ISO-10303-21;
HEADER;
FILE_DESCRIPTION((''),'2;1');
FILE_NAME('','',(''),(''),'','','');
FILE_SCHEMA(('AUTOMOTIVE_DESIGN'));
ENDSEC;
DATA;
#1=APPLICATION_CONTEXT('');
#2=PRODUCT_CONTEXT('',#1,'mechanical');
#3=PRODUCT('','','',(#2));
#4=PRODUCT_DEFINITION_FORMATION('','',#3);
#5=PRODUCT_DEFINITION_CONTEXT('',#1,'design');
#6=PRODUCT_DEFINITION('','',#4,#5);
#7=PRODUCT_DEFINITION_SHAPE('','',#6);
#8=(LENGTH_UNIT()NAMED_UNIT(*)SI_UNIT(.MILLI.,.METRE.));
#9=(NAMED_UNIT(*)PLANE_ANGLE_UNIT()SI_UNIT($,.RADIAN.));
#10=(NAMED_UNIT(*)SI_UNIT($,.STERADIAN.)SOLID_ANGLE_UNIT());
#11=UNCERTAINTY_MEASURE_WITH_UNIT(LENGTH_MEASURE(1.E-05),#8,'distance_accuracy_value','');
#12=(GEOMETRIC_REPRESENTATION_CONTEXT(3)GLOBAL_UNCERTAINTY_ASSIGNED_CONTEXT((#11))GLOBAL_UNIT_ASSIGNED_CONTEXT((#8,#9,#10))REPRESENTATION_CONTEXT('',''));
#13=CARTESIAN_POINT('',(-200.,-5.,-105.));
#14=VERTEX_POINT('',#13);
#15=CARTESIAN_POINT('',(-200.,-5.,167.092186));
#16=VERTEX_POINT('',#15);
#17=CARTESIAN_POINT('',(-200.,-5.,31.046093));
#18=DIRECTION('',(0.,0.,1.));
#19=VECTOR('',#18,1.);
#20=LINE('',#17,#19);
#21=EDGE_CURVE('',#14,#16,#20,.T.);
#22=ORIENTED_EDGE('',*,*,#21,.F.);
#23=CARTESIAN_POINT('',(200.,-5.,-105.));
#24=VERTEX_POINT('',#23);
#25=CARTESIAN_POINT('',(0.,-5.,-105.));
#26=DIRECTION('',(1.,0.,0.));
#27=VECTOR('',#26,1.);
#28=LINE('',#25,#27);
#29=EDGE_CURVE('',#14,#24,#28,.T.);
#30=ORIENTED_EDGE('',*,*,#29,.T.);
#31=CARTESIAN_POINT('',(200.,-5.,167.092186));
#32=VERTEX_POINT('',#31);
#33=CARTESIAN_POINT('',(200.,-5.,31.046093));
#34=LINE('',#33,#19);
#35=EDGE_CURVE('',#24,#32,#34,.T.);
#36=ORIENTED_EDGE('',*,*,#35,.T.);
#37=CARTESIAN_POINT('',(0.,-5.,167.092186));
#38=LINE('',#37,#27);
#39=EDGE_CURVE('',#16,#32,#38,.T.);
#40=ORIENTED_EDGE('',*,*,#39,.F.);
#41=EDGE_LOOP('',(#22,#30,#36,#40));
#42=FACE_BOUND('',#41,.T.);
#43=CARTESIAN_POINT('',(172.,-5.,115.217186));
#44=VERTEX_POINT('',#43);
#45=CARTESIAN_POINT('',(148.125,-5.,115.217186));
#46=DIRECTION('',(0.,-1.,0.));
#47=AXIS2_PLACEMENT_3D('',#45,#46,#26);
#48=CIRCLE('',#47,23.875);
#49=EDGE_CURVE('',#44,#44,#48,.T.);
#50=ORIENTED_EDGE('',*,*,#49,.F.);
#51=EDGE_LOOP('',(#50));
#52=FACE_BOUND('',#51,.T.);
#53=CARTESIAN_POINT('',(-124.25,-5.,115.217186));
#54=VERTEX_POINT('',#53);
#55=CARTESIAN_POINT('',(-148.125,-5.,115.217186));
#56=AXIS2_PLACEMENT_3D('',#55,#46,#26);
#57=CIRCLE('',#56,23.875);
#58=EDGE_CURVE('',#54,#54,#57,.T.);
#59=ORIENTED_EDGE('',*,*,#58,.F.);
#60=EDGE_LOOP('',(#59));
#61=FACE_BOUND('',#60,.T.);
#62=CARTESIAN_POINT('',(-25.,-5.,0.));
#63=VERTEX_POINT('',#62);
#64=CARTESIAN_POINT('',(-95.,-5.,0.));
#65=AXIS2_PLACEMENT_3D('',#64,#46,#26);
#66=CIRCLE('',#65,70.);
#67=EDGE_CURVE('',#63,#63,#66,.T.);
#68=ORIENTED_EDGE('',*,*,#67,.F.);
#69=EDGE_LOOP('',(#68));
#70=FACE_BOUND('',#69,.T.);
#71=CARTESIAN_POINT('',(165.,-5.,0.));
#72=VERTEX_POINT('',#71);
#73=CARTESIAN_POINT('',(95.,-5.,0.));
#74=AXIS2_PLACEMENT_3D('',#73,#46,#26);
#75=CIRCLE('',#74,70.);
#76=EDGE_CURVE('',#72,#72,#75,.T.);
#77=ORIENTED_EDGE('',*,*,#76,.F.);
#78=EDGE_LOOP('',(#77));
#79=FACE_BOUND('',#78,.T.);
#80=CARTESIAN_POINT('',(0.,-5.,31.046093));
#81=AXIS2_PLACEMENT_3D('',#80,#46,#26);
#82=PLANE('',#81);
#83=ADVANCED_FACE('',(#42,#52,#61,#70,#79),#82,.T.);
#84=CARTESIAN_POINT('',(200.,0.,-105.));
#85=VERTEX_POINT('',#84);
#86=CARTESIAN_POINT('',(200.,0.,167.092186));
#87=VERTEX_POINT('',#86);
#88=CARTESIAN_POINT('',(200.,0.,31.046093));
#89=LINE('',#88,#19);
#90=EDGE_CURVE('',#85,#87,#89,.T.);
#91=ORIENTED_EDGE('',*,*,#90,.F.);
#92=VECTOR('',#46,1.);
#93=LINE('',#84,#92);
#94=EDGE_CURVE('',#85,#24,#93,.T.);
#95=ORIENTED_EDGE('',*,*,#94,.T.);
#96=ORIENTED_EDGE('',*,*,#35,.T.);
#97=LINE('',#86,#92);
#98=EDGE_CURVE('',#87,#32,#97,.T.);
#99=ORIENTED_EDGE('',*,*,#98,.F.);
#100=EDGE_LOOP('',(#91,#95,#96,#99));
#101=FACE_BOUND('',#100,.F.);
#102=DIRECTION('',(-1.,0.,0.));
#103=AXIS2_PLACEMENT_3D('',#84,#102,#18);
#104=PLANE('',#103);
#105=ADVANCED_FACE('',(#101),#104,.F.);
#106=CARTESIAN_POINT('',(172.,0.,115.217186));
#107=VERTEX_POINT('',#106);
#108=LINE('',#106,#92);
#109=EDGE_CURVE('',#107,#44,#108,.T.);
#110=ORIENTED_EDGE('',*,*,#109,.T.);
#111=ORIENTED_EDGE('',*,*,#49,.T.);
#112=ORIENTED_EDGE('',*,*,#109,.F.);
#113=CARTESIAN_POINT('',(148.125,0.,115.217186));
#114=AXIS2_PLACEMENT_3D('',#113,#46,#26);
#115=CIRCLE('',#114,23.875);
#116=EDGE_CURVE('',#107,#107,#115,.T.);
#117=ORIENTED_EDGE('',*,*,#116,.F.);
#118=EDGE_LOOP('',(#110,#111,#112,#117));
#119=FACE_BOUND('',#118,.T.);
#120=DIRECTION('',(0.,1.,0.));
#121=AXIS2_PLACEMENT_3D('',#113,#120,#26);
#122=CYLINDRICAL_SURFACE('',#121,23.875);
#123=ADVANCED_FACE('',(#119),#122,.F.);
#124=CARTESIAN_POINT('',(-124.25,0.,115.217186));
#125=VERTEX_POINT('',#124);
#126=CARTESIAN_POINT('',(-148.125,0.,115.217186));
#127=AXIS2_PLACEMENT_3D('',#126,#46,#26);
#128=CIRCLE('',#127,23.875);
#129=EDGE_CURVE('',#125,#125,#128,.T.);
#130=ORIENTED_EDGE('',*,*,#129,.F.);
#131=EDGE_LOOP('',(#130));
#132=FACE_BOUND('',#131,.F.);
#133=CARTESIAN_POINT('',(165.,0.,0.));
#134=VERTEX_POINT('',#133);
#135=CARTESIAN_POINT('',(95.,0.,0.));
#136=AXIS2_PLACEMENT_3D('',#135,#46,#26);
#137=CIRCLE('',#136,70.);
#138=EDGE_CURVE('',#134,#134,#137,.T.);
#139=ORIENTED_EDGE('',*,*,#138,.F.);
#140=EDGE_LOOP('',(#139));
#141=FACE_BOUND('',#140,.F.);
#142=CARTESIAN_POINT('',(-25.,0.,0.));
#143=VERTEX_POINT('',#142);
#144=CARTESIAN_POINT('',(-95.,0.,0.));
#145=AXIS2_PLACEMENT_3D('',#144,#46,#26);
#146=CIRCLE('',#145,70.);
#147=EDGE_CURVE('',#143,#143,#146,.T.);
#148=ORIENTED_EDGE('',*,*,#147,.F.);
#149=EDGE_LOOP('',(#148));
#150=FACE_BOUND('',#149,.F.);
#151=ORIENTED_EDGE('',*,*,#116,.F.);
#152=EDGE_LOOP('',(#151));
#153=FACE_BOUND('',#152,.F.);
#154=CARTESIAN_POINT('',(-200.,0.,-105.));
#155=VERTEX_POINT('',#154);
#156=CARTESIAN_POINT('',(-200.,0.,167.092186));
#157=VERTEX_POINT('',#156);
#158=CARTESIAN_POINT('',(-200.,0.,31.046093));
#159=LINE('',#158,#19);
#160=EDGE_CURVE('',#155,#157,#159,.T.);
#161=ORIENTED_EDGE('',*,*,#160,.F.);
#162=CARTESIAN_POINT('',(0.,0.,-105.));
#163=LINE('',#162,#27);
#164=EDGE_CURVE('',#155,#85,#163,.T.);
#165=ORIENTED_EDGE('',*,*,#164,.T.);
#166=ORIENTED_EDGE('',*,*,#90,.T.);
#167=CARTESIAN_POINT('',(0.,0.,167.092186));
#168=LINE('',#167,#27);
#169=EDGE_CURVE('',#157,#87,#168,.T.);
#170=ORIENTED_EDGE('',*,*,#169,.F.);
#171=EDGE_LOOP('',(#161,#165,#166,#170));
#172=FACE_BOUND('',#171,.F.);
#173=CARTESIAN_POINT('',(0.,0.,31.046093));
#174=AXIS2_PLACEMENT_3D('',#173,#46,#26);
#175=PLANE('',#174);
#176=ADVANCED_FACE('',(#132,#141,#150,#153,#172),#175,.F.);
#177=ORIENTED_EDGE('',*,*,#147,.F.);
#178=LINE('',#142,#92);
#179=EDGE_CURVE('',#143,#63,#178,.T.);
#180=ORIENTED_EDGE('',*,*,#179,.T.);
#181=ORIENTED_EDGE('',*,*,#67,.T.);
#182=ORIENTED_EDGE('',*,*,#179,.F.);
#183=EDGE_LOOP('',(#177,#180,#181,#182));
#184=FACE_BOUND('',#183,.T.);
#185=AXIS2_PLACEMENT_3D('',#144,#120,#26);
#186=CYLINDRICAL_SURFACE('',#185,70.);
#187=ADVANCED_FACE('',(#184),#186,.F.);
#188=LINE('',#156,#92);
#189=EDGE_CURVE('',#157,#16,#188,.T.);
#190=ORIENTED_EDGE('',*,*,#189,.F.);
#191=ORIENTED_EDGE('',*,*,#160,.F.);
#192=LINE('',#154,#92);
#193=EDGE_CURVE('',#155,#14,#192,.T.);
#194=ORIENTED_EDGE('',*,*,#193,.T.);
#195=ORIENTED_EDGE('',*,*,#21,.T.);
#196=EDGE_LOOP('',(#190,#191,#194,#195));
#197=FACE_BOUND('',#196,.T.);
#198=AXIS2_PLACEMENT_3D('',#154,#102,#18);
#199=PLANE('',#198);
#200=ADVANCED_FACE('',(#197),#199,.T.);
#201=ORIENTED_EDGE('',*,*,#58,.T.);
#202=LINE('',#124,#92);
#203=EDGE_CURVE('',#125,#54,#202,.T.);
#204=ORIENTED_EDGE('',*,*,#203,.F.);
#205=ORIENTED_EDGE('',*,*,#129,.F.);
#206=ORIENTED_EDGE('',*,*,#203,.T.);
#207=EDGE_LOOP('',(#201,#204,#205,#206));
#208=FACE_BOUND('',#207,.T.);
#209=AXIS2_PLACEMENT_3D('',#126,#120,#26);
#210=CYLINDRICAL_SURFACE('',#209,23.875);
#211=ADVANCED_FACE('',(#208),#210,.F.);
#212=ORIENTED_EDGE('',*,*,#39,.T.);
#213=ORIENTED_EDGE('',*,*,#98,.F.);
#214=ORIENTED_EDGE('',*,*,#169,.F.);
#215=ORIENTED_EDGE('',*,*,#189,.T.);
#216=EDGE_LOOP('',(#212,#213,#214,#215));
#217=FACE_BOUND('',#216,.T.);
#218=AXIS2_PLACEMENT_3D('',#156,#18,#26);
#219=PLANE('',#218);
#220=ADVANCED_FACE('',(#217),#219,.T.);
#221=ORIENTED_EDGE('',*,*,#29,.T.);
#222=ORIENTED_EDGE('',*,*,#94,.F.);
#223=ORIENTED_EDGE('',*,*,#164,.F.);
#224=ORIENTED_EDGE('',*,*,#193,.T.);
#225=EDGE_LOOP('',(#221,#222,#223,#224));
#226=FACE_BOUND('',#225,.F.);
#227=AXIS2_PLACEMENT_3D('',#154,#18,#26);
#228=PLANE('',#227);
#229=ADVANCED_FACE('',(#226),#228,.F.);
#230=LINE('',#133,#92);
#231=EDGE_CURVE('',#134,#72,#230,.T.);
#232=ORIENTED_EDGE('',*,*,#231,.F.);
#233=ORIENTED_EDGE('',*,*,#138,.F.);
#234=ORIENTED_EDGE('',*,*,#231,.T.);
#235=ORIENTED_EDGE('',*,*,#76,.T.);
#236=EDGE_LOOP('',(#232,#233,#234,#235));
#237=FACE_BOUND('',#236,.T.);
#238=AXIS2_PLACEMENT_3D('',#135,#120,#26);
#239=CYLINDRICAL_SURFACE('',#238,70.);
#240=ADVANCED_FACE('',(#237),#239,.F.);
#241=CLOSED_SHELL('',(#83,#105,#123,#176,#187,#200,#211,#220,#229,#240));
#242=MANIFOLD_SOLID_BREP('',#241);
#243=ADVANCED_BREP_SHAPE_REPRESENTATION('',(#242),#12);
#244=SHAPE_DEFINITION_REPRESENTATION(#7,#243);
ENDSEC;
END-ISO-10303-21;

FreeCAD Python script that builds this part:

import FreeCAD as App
import Part
import Sketcher
Q = App.Units.Quantity


def add_polygon(sketch, points):
    """Adds a closed chain of lines whose ends are joined by coincident constraints."""
    first, n = sketch.GeometryCount, len(points)
    for a, b in zip(points, points[1:] + points[:1]):
        sketch.addGeometry(Part.LineSegment(App.Vector(*a, 0), App.Vector(*b, 0)), False)
    for i in range(n):
        sketch.addConstraint(Sketcher.Constraint("Coincident", first + i, 2, first + (i + 1) % n, 1))

doc = App.newDocument("Part")
params = doc.addObject("Spreadsheet::Sheet", "Params")
for row, (alias, value) in enumerate([
    ("sketch1_diameter", "140 mm"),
    ("sketch1_diameter2", "47.75 mm"),
    ("sketch1_width", "400 mm"),
    ("pad1_length", "5 mm"),
], start=1):
    params.set(f"A{row}", alias)
    params.set(f"B{row}", "=" + value)
    params.setAlias(f"B{row}", alias)

body = doc.addObject("PartDesign::Body", "Body")

sketch1 = doc.addObject("Sketcher::SketchObject", "Sketch")
body.addObject(sketch1)
sketch1.AttachmentSupport = (doc.XZ_Plane, [""])
sketch1.MapMode = "FlatFace"
add_polygon(sketch1, [(-200, 167), (-200, -105), (200, -105), (200, 167)])
sketch1.addGeometry(Part.Circle(App.Vector(-95, 0, 0), App.Vector(0, 0, 1), 70), False)
sketch1.addGeometry(Part.Circle(App.Vector(95, 0, 0), App.Vector(0, 0, 1), 70), False)
sketch1.addGeometry(Part.Circle(App.Vector(-148, 115, 0), App.Vector(0, 0, 1), 24), False)
sketch1.addGeometry(Part.Circle(App.Vector(148, 115, 0), App.Vector(0, 0, 1), 24), False)
sketch1.addConstraint([
    Sketcher.Constraint("Vertical", 0),
    Sketcher.Constraint("Horizontal", 1),
    Sketcher.Constraint("Vertical", 2),
    Sketcher.Constraint("Horizontal", 3),
    Sketcher.Constraint("Equal", 4, 5),
    Sketcher.Constraint("Equal", 6, 7),
    Sketcher.Constraint("Symmetric", 4, 3, 5, 3, -1, 1),
    Sketcher.Constraint("Symmetric", 6, 3, 7, 3, -2),
    Sketcher.Constraint("PointOnObject", 4, 3, -1),
    Sketcher.Constraint("Diameter", 4, Q("140 mm")),
    Sketcher.Constraint("Diameter", 6, Q("47.75 mm")),
    Sketcher.Constraint("DistanceX", 1, 1, 1, 2, Q("400 mm")),
    Sketcher.Constraint("DistanceX", 4, 3, -1, 1, Q("95 mm")),
    Sketcher.Constraint("DistanceX", 0, 2, -1, 1, Q("200 mm")),
    Sketcher.Constraint("DistanceY", 0, 2, -1, 1, Q("105 mm")),
    Sketcher.Constraint("DistanceX", 6, 3, 7, 3, Q("296.25 mm")),
    Sketcher.Constraint("DistanceY", 7, 3, 2, 2, Q("51.875 mm")),
    Sketcher.Constraint("DistanceY", 0, 2, 0, 1, Q("272.092186 mm")),
])
sketch1.setExpression("Constraints[13]", "Params.sketch1_diameter")
sketch1.setExpression("Constraints[14]", "Params.sketch1_diameter2")
sketch1.setExpression("Constraints[15]", "Params.sketch1_width")
pad1 = doc.addObject("PartDesign::Pad", "Pad")
body.addObject(pad1)
pad1.Profile = sketch1
pad1.setExpression("Length", "Params.pad1_length")

doc.recompute()
